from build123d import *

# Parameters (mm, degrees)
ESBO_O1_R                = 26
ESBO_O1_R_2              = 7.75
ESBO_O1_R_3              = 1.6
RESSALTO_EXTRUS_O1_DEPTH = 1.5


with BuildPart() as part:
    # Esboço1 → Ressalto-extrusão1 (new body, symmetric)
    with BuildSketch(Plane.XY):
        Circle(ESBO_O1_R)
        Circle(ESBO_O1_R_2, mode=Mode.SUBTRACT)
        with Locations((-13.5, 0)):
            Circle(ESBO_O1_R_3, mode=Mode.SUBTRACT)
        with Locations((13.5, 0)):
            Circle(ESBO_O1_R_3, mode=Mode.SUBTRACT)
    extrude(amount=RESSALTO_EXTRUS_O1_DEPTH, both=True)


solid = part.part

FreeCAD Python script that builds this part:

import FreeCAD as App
import Part
import Sketcher

V = App.Vector

doc = App.newDocument("Part")
body = doc.addObject("PartDesign::Body", "Body")

# Sketch on XY plane
sketch1 = body.newObject("Sketcher::SketchObject", "Sketch")
sketch1.AttachmentSupport = (doc.getObject("XY_Plane"), [""])
sketch1.MapMode = "FlatFace"
sketch1.addGeometry([
    Part.Circle(V(0, 0, 0), V(0, 0, 1), 26),
    Part.Circle(V(-13.5, 0, 0), V(0, 0, 1), 1.6),
    Part.Circle(V(0, 0, 0), V(0, 0, 1), 7.8),
    Part.Circle(V(13.5, 0, 0), V(0, 0, 1), 1.6),
], False)
sketch1.addConstraint([
    Sketcher.Constraint("Coincident", 0, 3, -1, 1),
    Sketcher.Constraint("Coincident", 2, 3, -1, 1),
    Sketcher.Constraint("Equal", 1, 3),
    Sketcher.Constraint("Symmetric", 1, 3, 3, 3, -1, 1),
    Sketcher.Constraint("PointOnObject", 1, 3, -1),
    Sketcher.Constraint("Diameter", 0, 52.0),
    Sketcher.Constraint("Diameter", 1, 3.2),
    Sketcher.Constraint("Diameter", 2, 15.5),
    Sketcher.Constraint("DistanceX", 1, 3, 3, 3, 27.0),
])
pad1 = body.newObject("PartDesign::Pad", "Pad")
pad1.Profile = sketch1
pad1.Length = 3
pad1.Midplane = True

doc.recompute()
